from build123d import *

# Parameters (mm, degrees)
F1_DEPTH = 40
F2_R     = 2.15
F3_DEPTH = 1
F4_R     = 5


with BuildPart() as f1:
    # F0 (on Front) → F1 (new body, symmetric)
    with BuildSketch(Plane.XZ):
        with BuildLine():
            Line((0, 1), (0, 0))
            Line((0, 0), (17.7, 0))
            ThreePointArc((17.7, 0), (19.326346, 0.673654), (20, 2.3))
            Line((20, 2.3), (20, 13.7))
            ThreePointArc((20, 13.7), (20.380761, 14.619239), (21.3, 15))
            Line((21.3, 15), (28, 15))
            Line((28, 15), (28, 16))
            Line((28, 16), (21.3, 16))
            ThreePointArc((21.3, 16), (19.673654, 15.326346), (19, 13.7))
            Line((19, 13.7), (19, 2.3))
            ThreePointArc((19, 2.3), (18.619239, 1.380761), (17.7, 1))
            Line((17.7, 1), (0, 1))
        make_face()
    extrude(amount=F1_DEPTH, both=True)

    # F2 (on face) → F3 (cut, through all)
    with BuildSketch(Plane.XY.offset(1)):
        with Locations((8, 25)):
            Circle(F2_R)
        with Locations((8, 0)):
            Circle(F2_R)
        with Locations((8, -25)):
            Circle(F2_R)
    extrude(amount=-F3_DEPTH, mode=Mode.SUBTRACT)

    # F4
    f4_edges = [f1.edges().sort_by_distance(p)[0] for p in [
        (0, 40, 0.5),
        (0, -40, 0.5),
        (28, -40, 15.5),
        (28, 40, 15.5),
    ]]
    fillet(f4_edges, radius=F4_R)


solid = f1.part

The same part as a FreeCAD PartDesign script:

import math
import FreeCAD as App
import Part
import Sketcher
from FreeCAD import Vector


def edges_at(feature, points):
    """Names of the edges that pass closest to the given points."""
    edges = feature.Shape.Edges
    near = lambda p: min(range(len(edges)), key=lambda i: edges[i].distToShape(Part.Vertex(*p))[0])
    return sorted({f"Edge{near(p) + 1}" for p in points})

doc = App.newDocument("Part")
params = doc.addObject("Spreadsheet::Sheet", "Params")
for row, (alias, value) in enumerate([
    ("sketch1_radius", "2.299999 mm"),
    ("sketch1_radius2", "1.299999 mm"),
    ("sketch1_width", "17.7 mm"),
    ("sketch1_width2", "6.7 mm"),
    ("sketch1_height", "11.4 mm"),
    ("pad1_length", "80 mm"),
    ("sketch2_diameter", "4.3 mm"),
    ("fillet_radius", "5 mm"),
], start=1):
    params.set(f"A{row}", alias)
    params.set(f"B{row}", "=" + value)
    params.setAlias(f"B{row}", alias)

body = doc.addObject("PartDesign::Body", "Body")

sketch1 = body.newObject("Sketcher::SketchObject", "Sketch")
sketch1.AttachmentSupport = (doc.getObject("XZ_Plane"), [""])
sketch1.MapMode = "FlatFace"
sketch1.addGeometry(Part.LineSegment(Vector(0, 1, 0), Vector(0, 0, 0)), False)
sketch1.addGeometry(Part.LineSegment(Vector(0, 0, 0), Vector(17.7, 0, 0)), False)
sketch1.addGeometry(Part.ArcOfCircle(Part.Circle(Vector(17.7, 2.3, 0), Vector(0, 0, 1), 2.3), math.radians(-90), math.radians(0)), False)
sketch1.addGeometry(Part.LineSegment(Vector(20, 2.3, 0), Vector(20, 13.7, 0)), False)
sketch1.addGeometry(Part.ArcOfCircle(Part.Circle(Vector(21.3, 13.7, 0), Vector(0, 0, 1), 1.3), math.radians(90), math.radians(180)), False)
sketch1.addGeometry(Part.LineSegment(Vector(21.3, 15, 0), Vector(28, 15, 0)), False)
sketch1.addGeometry(Part.LineSegment(Vector(28, 15, 0), Vector(28, 16, 0)), False)
sketch1.addGeometry(Part.LineSegment(Vector(28, 16, 0), Vector(21.3, 16, 0)), False)
sketch1.addGeometry(Part.ArcOfCircle(Part.Circle(Vector(21.3, 13.7, 0), Vector(0, 0, 1), 2.3), math.radians(90), math.radians(180)), False)
sketch1.addGeometry(Part.LineSegment(Vector(19, 13.7, 0), Vector(19, 2.3, 0)), False)
sketch1.addGeometry(Part.ArcOfCircle(Part.Circle(Vector(17.7, 2.3, 0), Vector(0, 0, 1), 1.3), math.radians(-90), math.radians(0)), False)
sketch1.addGeometry(Part.LineSegment(Vector(17.7, 1, 0), Vector(0, 1, 0)), False)
sketch1.addConstraint(Sketcher.Constraint("Coincident", 0, 2, 1, 1))
sketch1.addConstraint(Sketcher.Constraint("Tangent", 1, 2, 2, 1))
sketch1.addConstraint(Sketcher.Constraint("Tangent", 2, 2, 3, 1))
sketch1.addConstraint(Sketcher.Constraint("Tangent", 3, 2, 4, 2))
sketch1.addConstraint(Sketcher.Constraint("Tangent", 4, 1, 5, 1))
sketch1.addConstraint(Sketcher.Constraint("Coincident", 5, 2, 6, 1))
sketch1.addConstraint(Sketcher.Constraint("Coincident", 6, 2, 7, 1))
sketch1.addConstraint(Sketcher.Constraint("Tangent", 7, 2, 8, 1))
sketch1.addConstraint(Sketcher.Constraint("Tangent", 8, 2, 9, 1))
sketch1.addConstraint(Sketcher.Constraint("Tangent", 9, 2, 10, 2))
sketch1.addConstraint(Sketcher.Constraint("Tangent", 10, 1, 11, 1))
sketch1.addConstraint(Sketcher.Constraint("Coincident", 11, 2, 0, 1))
sketch1.addConstraint(Sketcher.Constraint("Vertical", 0))
sketch1.addConstraint(Sketcher.Constraint("Horizontal", 1))
sketch1.addConstraint(Sketcher.Constraint("Vertical", 3))
sketch1.addConstraint(Sketcher.Constraint("Horizontal", 5))
sketch1.addConstraint(Sketcher.Constraint("Vertical", 6))
sketch1.addConstraint(Sketcher.Constraint("Horizontal", 7))
sketch1.addConstraint(Sketcher.Constraint("Vertical", 9))
sketch1.addConstraint(Sketcher.Constraint("Horizontal", 11))
sketch1.addConstraint(Sketcher.Constraint("Coincident", 0, 2, -1, 1))
sketch1.addConstraint(Sketcher.Constraint("Coincident", 8, 3, 4, 3))
sketch1.addConstraint(Sketcher.Constraint("Coincident", 10, 3, 2, 3))
sketch1.addConstraint(Sketcher.Constraint("Equal", 2, 8))
sketch1.addConstraint(Sketcher.Constraint("Radius", 2, 2.299999))
sketch1.addConstraint(Sketcher.Constraint("Radius", 4, 1.299999))
sketch1.addConstraint(Sketcher.Constraint("DistanceX", 1, 1, 1, 2, 17.7))
sketch1.addConstraint(Sketcher.Constraint("DistanceX", 5, 1, 5, 2, 6.7))
sketch1.addConstraint(Sketcher.Constraint("DistanceY", 3, 1, 3, 2, 11.4))
sketch1.setExpression("Constraints[24]", "Params.sketch1_radius")
sketch1.setExpression("Constraints[25]", "Params.sketch1_radius2")
sketch1.setExpression("Constraints[26]", "Params.sketch1_width")
sketch1.setExpression("Constraints[27]", "Params.sketch1_width2")
sketch1.setExpression("Constraints[28]", "Params.sketch1_height")
pad1 = body.newObject("PartDesign::Pad", "Pad")
pad1.Profile = sketch1
pad1.setExpression("Length", "Params.pad1_length")
pad1.Midplane = True

sketch2 = body.newObject("Sketcher::SketchObject", "Sketch001")
sketch2.AttachmentSupport = (doc.getObject("XY_Plane"), [""])
sketch2.MapMode = "FlatFace"
sketch2.AttachmentOffset = App.Placement(Vector(0, 0, 1), App.Rotation())
sketch2.addGeometry(Part.Circle(Vector(8, 25, 0), Vector(0, 0, 1), 2.1), False)
sketch2.addGeometry(Part.Circle(Vector(8, 0, 0), Vector(0, 0, 1), 2.1), False)
sketch2.addGeometry(Part.Circle(Vector(8, -25, 0), Vector(0, 0, 1), 2.1), False)
sketch2.addConstraint(Sketcher.Constraint("Equal", 0, 1))
sketch2.addConstraint(Sketcher.Constraint("Equal", 1, 2))
sketch2.addConstraint(Sketcher.Constraint("Symmetric", 0, 3, 2, 3, -1))
sketch2.addConstraint(Sketcher.Constraint("PointOnObject", 1, 3, -1))
sketch2.addConstraint(Sketcher.Constraint("Vertical", 0, 3, 1, 3))
sketch2.addConstraint(Sketcher.Constraint("Diameter", 0, 4.3))
sketch2.addConstraint(Sketcher.Constraint("DistanceX", -1, 1, 0, 3, 8.0))
sketch2.addConstraint(Sketcher.Constraint("DistanceY", -1, 1, 0, 3, 25.0))
sketch2.setExpression("Constraints[5]", "Params.sketch2_diameter")
pocket1 = body.newObject("PartDesign::Pocket", "Pocket")
pocket1.Profile = sketch2
pocket1.Type = "ThroughAll"
doc.recompute()

fillet = body.newObject("PartDesign::Fillet", "Fillet")
fillet.Base = (pocket1, edges_at(pocket1, [
    (0, 40, 0.5),
    (0, -40, 0.5),
    (28, -40, 15.5),
    (28, 40, 15.5),
]))
fillet.setExpression("Radius", "Params.fillet_radius")

doc.recompute()
